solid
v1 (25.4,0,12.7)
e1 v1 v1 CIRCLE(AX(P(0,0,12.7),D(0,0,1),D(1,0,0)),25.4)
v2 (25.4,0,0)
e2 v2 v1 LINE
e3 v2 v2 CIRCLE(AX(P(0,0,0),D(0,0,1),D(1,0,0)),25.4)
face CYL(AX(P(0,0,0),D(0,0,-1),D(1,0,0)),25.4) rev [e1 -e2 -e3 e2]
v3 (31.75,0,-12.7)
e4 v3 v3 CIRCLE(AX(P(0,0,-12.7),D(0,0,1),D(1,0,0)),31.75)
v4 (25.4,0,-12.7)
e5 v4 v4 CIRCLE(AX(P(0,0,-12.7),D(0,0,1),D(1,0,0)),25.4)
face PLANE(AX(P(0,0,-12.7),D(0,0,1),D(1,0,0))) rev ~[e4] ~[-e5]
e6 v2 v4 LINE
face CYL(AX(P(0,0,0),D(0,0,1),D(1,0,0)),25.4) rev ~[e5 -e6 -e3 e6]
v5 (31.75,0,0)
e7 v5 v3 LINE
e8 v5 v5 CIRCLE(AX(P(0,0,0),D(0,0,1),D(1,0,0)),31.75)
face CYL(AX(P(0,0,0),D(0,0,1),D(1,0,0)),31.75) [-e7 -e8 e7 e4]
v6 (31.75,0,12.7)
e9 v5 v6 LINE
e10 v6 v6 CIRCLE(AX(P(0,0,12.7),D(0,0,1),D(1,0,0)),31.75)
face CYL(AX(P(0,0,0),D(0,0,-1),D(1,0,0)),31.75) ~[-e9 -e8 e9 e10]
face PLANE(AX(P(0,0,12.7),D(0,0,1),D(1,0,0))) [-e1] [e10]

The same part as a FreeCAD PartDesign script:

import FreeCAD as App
import Part
import Sketcher
from FreeCAD import Vector
Q = App.Units.Quantity

doc = App.newDocument("Part")
body = doc.addObject("PartDesign::Body", "Body")

# Sketch on XY plane
sketch1 = doc.addObject("Sketcher::SketchObject", "Sketch")
body.addObject(sketch1)
sketch1.AttachmentSupport = (doc.XY_Plane, [""])
sketch1.MapMode = "FlatFace"
sketch1.addGeometry(Part.Circle(Vector(0, 0, 0), Vector(0, 0, 1), 31.75), False)
sketch1.addGeometry(Part.Circle(Vector(0, 0, 0), Vector(0, 0, 1), 25.4), False)
sketch1.addConstraint(Sketcher.Constraint("Coincident", 0, 3, -1, 1))
sketch1.addConstraint(Sketcher.Constraint("Coincident", 1, 3, -1, 1))
sketch1.addConstraint(Sketcher.Constraint("Diameter", 1, Q("2 in")))
sketch1.addConstraint(Sketcher.Constraint("Diameter", 0, Q("2.5 in")))
pad1 = doc.addObject("PartDesign::Pad", "Pad")
body.addObject(pad1)
pad1.Profile = sketch1
pad1.Length = Q("1 in")
pad1.Midplane = True

doc.recompute()
